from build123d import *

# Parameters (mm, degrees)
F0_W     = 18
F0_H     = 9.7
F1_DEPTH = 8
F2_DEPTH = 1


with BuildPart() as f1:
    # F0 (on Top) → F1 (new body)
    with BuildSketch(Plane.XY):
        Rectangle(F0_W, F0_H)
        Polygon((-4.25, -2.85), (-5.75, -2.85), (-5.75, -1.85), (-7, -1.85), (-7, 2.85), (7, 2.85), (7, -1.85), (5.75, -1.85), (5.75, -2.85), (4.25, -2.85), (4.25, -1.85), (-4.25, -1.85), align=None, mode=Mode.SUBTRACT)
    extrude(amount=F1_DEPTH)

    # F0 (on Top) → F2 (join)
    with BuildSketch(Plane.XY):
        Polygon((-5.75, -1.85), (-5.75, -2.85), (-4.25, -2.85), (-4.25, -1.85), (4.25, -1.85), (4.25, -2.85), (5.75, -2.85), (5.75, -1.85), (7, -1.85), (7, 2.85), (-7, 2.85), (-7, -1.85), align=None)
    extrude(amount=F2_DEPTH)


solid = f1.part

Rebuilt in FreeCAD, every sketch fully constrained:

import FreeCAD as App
import Part
import Sketcher

V = App.Vector

doc = App.newDocument("Part")
body = doc.addObject("PartDesign::Body", "Body")

# Sketch on XY plane
sketch1 = body.newObject("Sketcher::SketchObject", "Sketch")
sketch1.AttachmentSupport = (doc.getObject("XY_Plane"), [""])
sketch1.MapMode = "FlatFace"
sketch1.addGeometry(Part.LineSegment(V(-9, 4.8, 0), V(-9, -4.8, 0)), False)
sketch1.addGeometry(Part.LineSegment(V(-9, -4.8, 0), V(9, -4.8, 0)), False)
sketch1.addGeometry(Part.LineSegment(V(9, -4.8, 0), V(9, 4.8, 0)), False)
sketch1.addGeometry(Part.LineSegment(V(9, 4.8, 0), V(-9, 4.8, 0)), False)
sketch1.addGeometry(Part.LineSegment(V(-4.2, -1.9, 0), V(-4.2, -2.9, 0)), False)
sketch1.addGeometry(Part.LineSegment(V(-4.2, -2.9, 0), V(-5.8, -2.9, 0)), False)
sketch1.addGeometry(Part.LineSegment(V(-5.8, -2.9, 0), V(-5.8, -1.9, 0)), False)
sketch1.addGeometry(Part.LineSegment(V(-5.8, -1.9, 0), V(-7, -1.9, 0)), False)
sketch1.addGeometry(Part.LineSegment(V(-7, -1.9, 0), V(-7, 2.9, 0)), False)
sketch1.addGeometry(Part.LineSegment(V(-7, 2.9, 0), V(7, 2.9, 0)), False)
sketch1.addGeometry(Part.LineSegment(V(7, 2.9, 0), V(7, -1.9, 0)), False)
sketch1.addGeometry(Part.LineSegment(V(7, -1.9, 0), V(5.8, -1.9, 0)), False)
sketch1.addGeometry(Part.LineSegment(V(5.8, -1.9, 0), V(5.8, -2.9, 0)), False)
sketch1.addGeometry(Part.LineSegment(V(5.8, -2.9, 0), V(4.2, -2.9, 0)), False)
sketch1.addGeometry(Part.LineSegment(V(4.2, -2.9, 0), V(4.2, -1.9, 0)), False)
sketch1.addGeometry(Part.LineSegment(V(4.2, -1.9, 0), V(-4.2, -1.9, 0)), False)
sketch1.addConstraint(Sketcher.Constraint("Coincident", 0, 2, 1, 1))
sketch1.addConstraint(Sketcher.Constraint("Coincident", 1, 2, 2, 1))
sketch1.addConstraint(Sketcher.Constraint("Coincident", 2, 2, 3, 1))
sketch1.addConstraint(Sketcher.Constraint("Coincident", 3, 2, 0, 1))
sketch1.addConstraint(Sketcher.Constraint("Coincident", 4, 2, 5, 1))
sketch1.addConstraint(Sketcher.Constraint("Coincident", 5, 2, 6, 1))
sketch1.addConstraint(Sketcher.Constraint("Coincident", 6, 2, 7, 1))
sketch1.addConstraint(Sketcher.Constraint("Coincident", 7, 2, 8, 1))
sketch1.addConstraint(Sketcher.Constraint("Coincident", 8, 2, 9, 1))
sketch1.addConstraint(Sketcher.Constraint("Coincident", 9, 2, 10, 1))
sketch1.addConstraint(Sketcher.Constraint("Coincident", 10, 2, 11, 1))
sketch1.addConstraint(Sketcher.Constraint("Coincident", 11, 2, 12, 1))
sketch1.addConstraint(Sketcher.Constraint("Coincident", 12, 2, 13, 1))
sketch1.addConstraint(Sketcher.Constraint("Coincident", 13, 2, 14, 1))
sketch1.addConstraint(Sketcher.Constraint("Coincident", 14, 2, 15, 1))
sketch1.addConstraint(Sketcher.Constraint("Coincident", 15, 2, 4, 1))
sketch1.addConstraint(Sketcher.Constraint("Vertical", 0))
sketch1.addConstraint(Sketcher.Constraint("Horizontal", 1))
sketch1.addConstraint(Sketcher.Constraint("Vertical", 2))
sketch1.addConstraint(Sketcher.Constraint("Horizontal", 3))
sketch1.addConstraint(Sketcher.Constraint("Vertical", 4))
sketch1.addConstraint(Sketcher.Constraint("Horizontal", 5))
sketch1.addConstraint(Sketcher.Constraint("Vertical", 6))
sketch1.addConstraint(Sketcher.Constraint("Horizontal", 7))
sketch1.addConstraint(Sketcher.Constraint("Vertical", 8))
sketch1.addConstraint(Sketcher.Constraint("Horizontal", 9))
sketch1.addConstraint(Sketcher.Constraint("Vertical", 10))
sketch1.addConstraint(Sketcher.Constraint("Horizontal", 11))
sketch1.addConstraint(Sketcher.Constraint("Vertical", 12))
sketch1.addConstraint(Sketcher.Constraint("Horizontal", 13))
sketch1.addConstraint(Sketcher.Constraint("Vertical", 14))
sketch1.addConstraint(Sketcher.Constraint("Horizontal", 15))
sketch1.addConstraint(Sketcher.Constraint("Symmetric", 0, 2, 2, 2, -1, 1))
sketch1.addConstraint(Sketcher.Constraint("Symmetric", 7, 2, 10, 2, -2))
sketch1.addConstraint(Sketcher.Constraint("Symmetric", 5, 2, 12, 2, -2))
sketch1.addConstraint(Sketcher.Constraint("Horizontal", 11, 2, 14, 2))
sketch1.addConstraint(Sketcher.Constraint("Equal", 5, 13))
sketch1.addConstraint(Sketcher.Constraint("DistanceX", 1, 1, 1, 2, 18.0))
sketch1.addConstraint(Sketcher.Constraint("DistanceX", 9, 1, 9, 2, 14.0))
sketch1.addConstraint(Sketcher.Constraint("DistanceY", 4, 2, 4, 1, 1.0))
sketch1.addConstraint(Sketcher.Constraint("DistanceX", 5, 2, 5, 1, 1.5))
sketch1.addConstraint(Sketcher.Constraint("DistanceX", 15, 2, 15, 1, 8.5))
sketch1.addConstraint(Sketcher.Constraint("DistanceY", 0, 2, 0, 1, 9.7))
sketch1.addConstraint(Sketcher.Constraint("DistanceY", 8, 1, 8, 2, 4.7))
sketch1.addConstraint(Sketcher.Constraint("DistanceY", 0, 2, 4, 2, 2.0))
pad1 = body.newObject("PartDesign::Pad", "Pad")
pad1.Profile = sketch1
pad1.Length = 8

# Sketch on XY plane
sketch2 = body.newObject("Sketcher::SketchObject", "Sketch001")
sketch2.AttachmentSupport = (doc.getObject("XY_Plane"), [""])
sketch2.MapMode = "FlatFace"
sketch2.addGeometry(Part.LineSegment(V(-5.8, -1.9, 0), V(-5.8, -2.9, 0)), False)
sketch2.addGeometry(Part.LineSegment(V(-5.8, -2.9, 0), V(-4.2, -2.9, 0)), False)
sketch2.addGeometry(Part.LineSegment(V(-4.2, -2.9, 0), V(-4.2, -1.9, 0)), False)
sketch2.addGeometry(Part.LineSegment(V(-4.2, -1.9, 0), V(4.2, -1.9, 0)), False)
sketch2.addGeometry(Part.LineSegment(V(4.2, -1.9, 0), V(4.2, -2.9, 0)), False)
sketch2.addGeometry(Part.LineSegment(V(4.2, -2.9, 0), V(5.8, -2.9, 0)), False)
sketch2.addGeometry(Part.LineSegment(V(5.8, -2.9, 0), V(5.8, -1.9, 0)), False)
sketch2.addGeometry(Part.LineSegment(V(5.8, -1.9, 0), V(7, -1.9, 0)), False)
sketch2.addGeometry(Part.LineSegment(V(7, -1.9, 0), V(7, 2.9, 0)), False)
sketch2.addGeometry(Part.LineSegment(V(7, 2.9, 0), V(-7, 2.9, 0)), False)
sketch2.addGeometry(Part.LineSegment(V(-7, 2.9, 0), V(-7, -1.9, 0)), False)
sketch2.addGeometry(Part.LineSegment(V(-7, -1.9, 0), V(-5.8, -1.9, 0)), False)
sketch2.addConstraint(Sketcher.Constraint("Coincident", 0, 2, 1, 1))
sketch2.addConstraint(Sketcher.Constraint("Coincident", 1, 2, 2, 1))
sketch2.addConstraint(Sketcher.Constraint("Coincident", 2, 2, 3, 1))
sketch2.addConstraint(Sketcher.Constraint("Coincident", 3, 2, 4, 1))
sketch2.addConstraint(Sketcher.Constraint("Coincident", 4, 2, 5, 1))
sketch2.addConstraint(Sketcher.Constraint("Coincident", 5, 2, 6, 1))
sketch2.addConstraint(Sketcher.Constraint("Coincident", 6, 2, 7, 1))
sketch2.addConstraint(Sketcher.Constraint("Coincident", 7, 2, 8, 1))
sketch2.addConstraint(Sketcher.Constraint("Coincident", 8, 2, 9, 1))
sketch2.addConstraint(Sketcher.Constraint("Coincident", 9, 2, 10, 1))
sketch2.addConstraint(Sketcher.Constraint("Coincident", 10, 2, 11, 1))
sketch2.addConstraint(Sketcher.Constraint("Coincident", 11, 2, 0, 1))
sketch2.addConstraint(Sketcher.Constraint("Vertical", 0))
sketch2.addConstraint(Sketcher.Constraint("Horizontal", 1))
sketch2.addConstraint(Sketcher.Constraint("Vertical", 2))
sketch2.addConstraint(Sketcher.Constraint("Horizontal", 3))
sketch2.addConstraint(Sketcher.Constraint("Vertical", 4))
sketch2.addConstraint(Sketcher.Constraint("Horizontal", 5))
sketch2.addConstraint(Sketcher.Constraint("Vertical", 6))
sketch2.addConstraint(Sketcher.Constraint("Horizontal", 7))
sketch2.addConstraint(Sketcher.Constraint("Vertical", 8))
sketch2.addConstraint(Sketcher.Constraint("Horizontal", 9))
sketch2.addConstraint(Sketcher.Constraint("Vertical", 10))
sketch2.addConstraint(Sketcher.Constraint("Horizontal", 11))
sketch2.addConstraint(Sketcher.Constraint("Symmetric", 1, 2, 4, 2, -2))
sketch2.addConstraint(Sketcher.Constraint("Symmetric", 7, 2, 10, 2, -2))
sketch2.addConstraint(Sketcher.Constraint("Horizontal", 3, 2, 6, 2))
sketch2.addConstraint(Sketcher.Constraint("Equal", 1, 5))
sketch2.addConstraint(Sketcher.Constraint("DistanceX", 9, 2, 9, 1, 14.0))
sketch2.addConstraint(Sketcher.Constraint("DistanceY", 0, 2, 0, 1, 1.0))
sketch2.addConstraint(Sketcher.Constraint("DistanceX", 1, 1, 1, 2, 1.5))
sketch2.addConstraint(Sketcher.Constraint("DistanceX", 3, 1, 3, 2, 8.5))
sketch2.addConstraint(Sketcher.Constraint("DistanceY", 8, 1, 8, 2, 4.7))
sketch2.addConstraint(Sketcher.Constraint("DistanceY", 0, 2, -1, 1, 2.85))
pad2 = body.newObject("PartDesign::Pad", "Pad001")
pad2.Profile = sketch2
pad2.Length = 1

doc.recompute()
